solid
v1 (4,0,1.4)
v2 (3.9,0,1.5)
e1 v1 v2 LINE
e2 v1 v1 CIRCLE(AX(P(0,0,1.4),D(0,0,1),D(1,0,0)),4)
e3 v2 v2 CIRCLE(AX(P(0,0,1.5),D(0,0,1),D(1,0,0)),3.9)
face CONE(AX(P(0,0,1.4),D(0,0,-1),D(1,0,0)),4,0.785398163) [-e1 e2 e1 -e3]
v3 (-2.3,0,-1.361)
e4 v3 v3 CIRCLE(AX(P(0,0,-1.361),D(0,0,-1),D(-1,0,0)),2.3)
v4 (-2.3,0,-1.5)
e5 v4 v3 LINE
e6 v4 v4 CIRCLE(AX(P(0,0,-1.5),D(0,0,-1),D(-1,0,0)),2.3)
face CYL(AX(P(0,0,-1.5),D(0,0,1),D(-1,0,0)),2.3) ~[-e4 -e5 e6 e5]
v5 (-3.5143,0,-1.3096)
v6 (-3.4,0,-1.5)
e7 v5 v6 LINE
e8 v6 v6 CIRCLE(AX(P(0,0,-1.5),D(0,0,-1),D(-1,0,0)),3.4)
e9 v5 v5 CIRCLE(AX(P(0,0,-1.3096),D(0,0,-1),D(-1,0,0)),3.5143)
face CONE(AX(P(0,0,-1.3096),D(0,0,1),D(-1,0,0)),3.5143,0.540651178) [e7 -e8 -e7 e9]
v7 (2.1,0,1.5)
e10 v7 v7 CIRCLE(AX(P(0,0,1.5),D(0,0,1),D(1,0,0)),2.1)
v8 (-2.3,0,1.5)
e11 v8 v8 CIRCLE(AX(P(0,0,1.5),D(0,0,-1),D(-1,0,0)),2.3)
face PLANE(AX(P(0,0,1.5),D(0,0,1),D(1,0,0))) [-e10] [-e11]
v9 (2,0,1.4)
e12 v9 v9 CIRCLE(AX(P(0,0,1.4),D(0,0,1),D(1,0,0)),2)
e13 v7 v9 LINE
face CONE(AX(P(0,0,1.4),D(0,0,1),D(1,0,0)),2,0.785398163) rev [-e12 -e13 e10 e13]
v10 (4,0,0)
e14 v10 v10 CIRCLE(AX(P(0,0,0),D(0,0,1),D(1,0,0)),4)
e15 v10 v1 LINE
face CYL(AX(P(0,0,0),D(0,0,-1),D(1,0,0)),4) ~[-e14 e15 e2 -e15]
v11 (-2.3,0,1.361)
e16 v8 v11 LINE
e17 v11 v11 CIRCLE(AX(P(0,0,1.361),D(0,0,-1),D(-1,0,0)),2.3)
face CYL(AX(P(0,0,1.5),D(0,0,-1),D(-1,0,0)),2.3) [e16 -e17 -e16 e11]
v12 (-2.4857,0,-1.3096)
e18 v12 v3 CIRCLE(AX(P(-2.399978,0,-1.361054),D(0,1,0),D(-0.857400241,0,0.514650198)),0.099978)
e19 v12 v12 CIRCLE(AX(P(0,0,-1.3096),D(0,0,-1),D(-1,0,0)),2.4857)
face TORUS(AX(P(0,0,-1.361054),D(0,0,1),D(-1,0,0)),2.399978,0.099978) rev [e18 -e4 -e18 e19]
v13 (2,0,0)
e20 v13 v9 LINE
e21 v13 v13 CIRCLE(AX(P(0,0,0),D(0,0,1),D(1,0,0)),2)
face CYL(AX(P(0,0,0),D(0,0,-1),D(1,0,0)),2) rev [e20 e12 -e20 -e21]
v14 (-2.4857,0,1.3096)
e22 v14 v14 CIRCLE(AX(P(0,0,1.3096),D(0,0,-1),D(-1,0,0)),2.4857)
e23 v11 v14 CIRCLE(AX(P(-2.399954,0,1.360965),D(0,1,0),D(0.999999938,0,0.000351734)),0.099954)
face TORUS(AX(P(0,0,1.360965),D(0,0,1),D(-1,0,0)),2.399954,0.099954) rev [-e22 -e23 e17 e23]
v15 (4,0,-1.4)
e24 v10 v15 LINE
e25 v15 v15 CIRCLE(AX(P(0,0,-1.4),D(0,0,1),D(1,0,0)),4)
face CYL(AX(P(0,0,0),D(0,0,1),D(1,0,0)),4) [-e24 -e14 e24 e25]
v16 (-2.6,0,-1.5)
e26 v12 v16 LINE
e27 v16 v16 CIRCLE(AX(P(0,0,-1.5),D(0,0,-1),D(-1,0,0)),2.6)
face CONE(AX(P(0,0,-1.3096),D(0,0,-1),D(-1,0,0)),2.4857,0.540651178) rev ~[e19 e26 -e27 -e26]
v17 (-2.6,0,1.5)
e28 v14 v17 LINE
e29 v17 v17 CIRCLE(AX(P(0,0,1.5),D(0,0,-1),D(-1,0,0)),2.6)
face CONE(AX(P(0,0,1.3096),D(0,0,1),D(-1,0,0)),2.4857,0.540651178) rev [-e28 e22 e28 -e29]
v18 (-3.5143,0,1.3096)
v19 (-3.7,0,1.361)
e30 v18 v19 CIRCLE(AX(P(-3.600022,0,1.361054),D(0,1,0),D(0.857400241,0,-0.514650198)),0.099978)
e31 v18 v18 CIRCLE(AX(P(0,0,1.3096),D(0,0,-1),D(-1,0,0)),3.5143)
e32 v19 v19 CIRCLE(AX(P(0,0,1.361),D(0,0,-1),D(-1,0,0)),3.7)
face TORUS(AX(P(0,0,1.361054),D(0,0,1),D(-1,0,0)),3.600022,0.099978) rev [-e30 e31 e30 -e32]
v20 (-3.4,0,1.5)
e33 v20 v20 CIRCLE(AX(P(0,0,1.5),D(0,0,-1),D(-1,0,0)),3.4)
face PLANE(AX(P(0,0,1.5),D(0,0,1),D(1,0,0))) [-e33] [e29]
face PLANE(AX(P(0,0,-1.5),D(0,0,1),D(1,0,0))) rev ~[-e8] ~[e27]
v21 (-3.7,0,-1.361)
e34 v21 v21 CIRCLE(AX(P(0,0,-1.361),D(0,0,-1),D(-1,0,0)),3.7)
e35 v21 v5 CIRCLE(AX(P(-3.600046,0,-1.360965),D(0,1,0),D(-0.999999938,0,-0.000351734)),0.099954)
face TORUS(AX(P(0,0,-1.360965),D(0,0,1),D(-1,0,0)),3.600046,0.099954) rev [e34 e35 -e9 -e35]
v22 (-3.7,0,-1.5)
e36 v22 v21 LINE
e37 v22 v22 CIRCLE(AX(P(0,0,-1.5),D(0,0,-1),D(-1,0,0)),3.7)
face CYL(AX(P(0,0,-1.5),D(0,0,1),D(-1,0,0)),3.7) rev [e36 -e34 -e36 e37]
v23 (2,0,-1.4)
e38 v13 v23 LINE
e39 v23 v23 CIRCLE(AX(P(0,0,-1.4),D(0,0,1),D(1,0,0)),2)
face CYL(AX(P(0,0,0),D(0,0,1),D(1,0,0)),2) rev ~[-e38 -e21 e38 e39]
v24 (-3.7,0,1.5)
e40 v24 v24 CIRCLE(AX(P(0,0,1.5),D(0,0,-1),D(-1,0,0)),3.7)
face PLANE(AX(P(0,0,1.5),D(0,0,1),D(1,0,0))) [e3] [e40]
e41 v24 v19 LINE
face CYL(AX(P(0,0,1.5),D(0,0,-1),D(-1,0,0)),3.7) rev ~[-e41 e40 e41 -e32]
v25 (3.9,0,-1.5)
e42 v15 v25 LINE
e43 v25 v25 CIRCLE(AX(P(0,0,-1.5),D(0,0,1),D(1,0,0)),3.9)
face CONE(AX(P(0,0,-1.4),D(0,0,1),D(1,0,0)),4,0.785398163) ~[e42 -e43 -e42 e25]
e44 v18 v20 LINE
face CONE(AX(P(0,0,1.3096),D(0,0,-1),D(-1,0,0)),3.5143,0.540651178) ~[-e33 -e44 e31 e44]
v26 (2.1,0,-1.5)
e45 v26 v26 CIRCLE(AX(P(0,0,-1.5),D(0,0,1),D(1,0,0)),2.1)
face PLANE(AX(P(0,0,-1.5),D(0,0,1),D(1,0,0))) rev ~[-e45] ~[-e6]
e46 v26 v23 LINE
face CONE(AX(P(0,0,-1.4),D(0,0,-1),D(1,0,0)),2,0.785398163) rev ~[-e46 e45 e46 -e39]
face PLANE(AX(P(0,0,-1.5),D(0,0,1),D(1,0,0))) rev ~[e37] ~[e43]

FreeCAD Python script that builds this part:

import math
import FreeCAD as App
import Part
import Sketcher
from FreeCAD import Vector


def edges_at(feature, points):
    """Names of the edges that pass closest to the given points."""
    edges = feature.Shape.Edges
    near = lambda p: min(range(len(edges)), key=lambda i: edges[i].distToShape(Part.Vertex(*p))[0])
    return sorted({f"Edge{near(p) + 1}" for p in points})

doc = App.newDocument("Part")
body = doc.addObject("PartDesign::Body", "Body")

# Sketch on XY plane
sketch1 = body.newObject("Sketcher::SketchObject", "Sketch")
sketch1.AttachmentSupport = (doc.getObject("XY_Plane"), [""])
sketch1.MapMode = "FlatFace"
sketch1.addGeometry(Part.Circle(Vector(0, 0, 0), Vector(0, 0, 1), 4), False)
sketch1.addGeometry(Part.Circle(Vector(0, 0, 0), Vector(0, 0, 1), 2), False)
sketch1.addConstraint(Sketcher.Constraint("Coincident", 0, 3, -1, 1))
sketch1.addConstraint(Sketcher.Constraint("Coincident", 1, 3, -1, 1))
sketch1.addConstraint(Sketcher.Constraint("Diameter", 0, 8.0))
sketch1.addConstraint(Sketcher.Constraint("Diameter", 1, 4.0))
pad1 = body.newObject("PartDesign::Pad", "Pad")
pad1.Profile = sketch1
pad1.Length = 3
pad1.Midplane = True
doc.recompute()

chamfer = body.newObject("PartDesign::Chamfer", "Chamfer")
chamfer.Base = (pad1, edges_at(pad1, [
    (-4, 0, 1.5),
    (-4, 0, -1.5),
    (-2, 0, 1.5),
    (-2, 0, -1.5),
]))
chamfer.Size = 0.1

# Sketch on XZ plane
sketch2 = body.newObject("Sketcher::SketchObject", "Sketch001")
sketch2.AttachmentSupport = (doc.getObject("XZ_Plane"), [""])
sketch2.MapMode = "FlatFace"
sketch2.addGeometry(Part.LineSegment(Vector(-3.7, 1.5, 0), Vector(-3.4, 1.5, 0)), False)
sketch2.addGeometry(Part.LineSegment(Vector(-3.4, 1.5, 0), Vector(-3.51, 1.31, 0)), False)
sketch2.addGeometry(Part.ArcOfCircle(Part.Circle(Vector(-3.6, 1.36, 0), Vector(0, 0, 1), 0.1), math.radians(180), math.radians(329)), False)
sketch2.addGeometry(Part.LineSegment(Vector(-3.7, 1.36, 0), Vector(-3.7, 1.5, 0)), False)
sketch2.addGeometry(Part.LineSegment(Vector(-2.6, 1.5, 0), Vector(-2.3, 1.5, 0)), False)
sketch2.addGeometry(Part.LineSegment(Vector(-2.3, 1.5, 0), Vector(-2.3, 1.36, 0)), False)
sketch2.addGeometry(Part.ArcOfCircle(Part.Circle(Vector(-2.4, 1.36, 0), Vector(0, 0, 1), 0.1), math.radians(-149), math.radians(0)), False)
sketch2.addGeometry(Part.LineSegment(Vector(-2.49, 1.31, 0), Vector(-2.6, 1.5, 0)), False)
sketch2.addGeometry(Part.LineSegment(Vector(-3.4, -1.5, 0), Vector(-3.7, -1.5, 0)), False)
sketch2.addGeometry(Part.LineSegment(Vector(-3.7, -1.5, 0), Vector(-3.7, -1.36, 0)), False)
sketch2.addGeometry(Part.ArcOfCircle(Part.Circle(Vector(-3.6, -1.36, 0), Vector(0, 0, 1), 0.1), math.radians(31), math.radians(180)), False)
sketch2.addGeometry(Part.LineSegment(Vector(-3.51, -1.31, 0), Vector(-3.4, -1.5, 0)), False)
sketch2.addGeometry(Part.LineSegment(Vector(-2.3, -1.5, 0), Vector(-2.6, -1.5, 0)), False)
sketch2.addGeometry(Part.LineSegment(Vector(-2.6, -1.5, 0), Vector(-2.49, -1.31, 0)), False)
sketch2.addGeometry(Part.ArcOfCircle(Part.Circle(Vector(-2.4, -1.36, 0), Vector(0, 0, 1), 0.1), math.radians(0), math.radians(149)), False)
sketch2.addGeometry(Part.LineSegment(Vector(-2.3, -1.36, 0), Vector(-2.3, -1.5, 0)), False)
sketch2.addConstraint(Sketcher.Constraint("Coincident", 0, 2, 1, 1))
sketch2.addConstraint(Sketcher.Constraint("Tangent", 1, 2, 2, 2))
sketch2.addConstraint(Sketcher.Constraint("Tangent", 2, 1, 3, 1))
sketch2.addConstraint(Sketcher.Constraint("Coincident", 3, 2, 0, 1))
sketch2.addConstraint(Sketcher.Constraint("Coincident", 4, 2, 5, 1))
sketch2.addConstraint(Sketcher.Constraint("Tangent", 5, 2, 6, 2))
sketch2.addConstraint(Sketcher.Constraint("Tangent", 6, 1, 7, 1))
sketch2.addConstraint(Sketcher.Constraint("Coincident", 7, 2, 4, 1))
sketch2.addConstraint(Sketcher.Constraint("Coincident", 8, 2, 9, 1))
sketch2.addConstraint(Sketcher.Constraint("Tangent", 9, 2, 10, 2))
sketch2.addConstraint(Sketcher.Constraint("Tangent", 10, 1, 11, 1))
sketch2.addConstraint(Sketcher.Constraint("Coincident", 11, 2, 8, 1))
sketch2.addConstraint(Sketcher.Constraint("Coincident", 12, 2, 13, 1))
sketch2.addConstraint(Sketcher.Constraint("Tangent", 13, 2, 14, 2))
sketch2.addConstraint(Sketcher.Constraint("Tangent", 14, 1, 15, 1))
sketch2.addConstraint(Sketcher.Constraint("Coincident", 15, 2, 12, 1))
sketch2.addConstraint(Sketcher.Constraint("Horizontal", 0))
sketch2.addConstraint(Sketcher.Constraint("Vertical", 3))
sketch2.addConstraint(Sketcher.Constraint("Horizontal", 4))
sketch2.addConstraint(Sketcher.Constraint("Vertical", 5))
sketch2.addConstraint(Sketcher.Constraint("Horizontal", 8))
sketch2.addConstraint(Sketcher.Constraint("Vertical", 9))
sketch2.addConstraint(Sketcher.Constraint("Horizontal", 12))
sketch2.addConstraint(Sketcher.Constraint("Vertical", 15))
sketch2.addConstraint(Sketcher.Constraint("Equal", 2, 6))
sketch2.addConstraint(Sketcher.Constraint("Equal", 6, 10))
sketch2.addConstraint(Sketcher.Constraint("Equal", 10, 14))
sketch2.addConstraint(Sketcher.Constraint("Symmetric", 2, 3, 10, 3, -1))
sketch2.addConstraint(Sketcher.Constraint("Symmetric", 6, 3, 14, 3, -1))
sketch2.addConstraint(Sketcher.Constraint("Symmetric", 0, 2, 11, 2, -1))
sketch2.addConstraint(Sketcher.Constraint("Symmetric", 7, 2, 12, 2, -1))
sketch2.addConstraint(Sketcher.Constraint("Parallel", 7, 11))
sketch2.addConstraint(Sketcher.Constraint("Horizontal", 2, 3, 6, 3))
sketch2.addConstraint(Sketcher.Constraint("Horizontal", 3, 2, 4, 2))
sketch2.addConstraint(Sketcher.Constraint("Radius", 2, 0.1))
sketch2.addConstraint(Sketcher.Constraint("DistanceX", 0, 1, 0, 2, 0.3))
sketch2.addConstraint(Sketcher.Constraint("DistanceX", 0, 2, 6, 3, 1.0))
sketch2.addConstraint(Sketcher.Constraint("DistanceX", 2, 3, -1, 1, 3.6))
sketch2.addConstraint(Sketcher.Constraint("DistanceY", -1, 1, 0, 2, 1.5))
sketch2.addConstraint(Sketcher.Constraint("DistanceY", 3, 1, 3, 2, 0.139))
groove = body.newObject("PartDesign::Groove", "Groove")
groove.Profile = sketch2
groove.ReferenceAxis = (sketch2, ["V_Axis"])
groove.Angle = 360

doc.recompute()
